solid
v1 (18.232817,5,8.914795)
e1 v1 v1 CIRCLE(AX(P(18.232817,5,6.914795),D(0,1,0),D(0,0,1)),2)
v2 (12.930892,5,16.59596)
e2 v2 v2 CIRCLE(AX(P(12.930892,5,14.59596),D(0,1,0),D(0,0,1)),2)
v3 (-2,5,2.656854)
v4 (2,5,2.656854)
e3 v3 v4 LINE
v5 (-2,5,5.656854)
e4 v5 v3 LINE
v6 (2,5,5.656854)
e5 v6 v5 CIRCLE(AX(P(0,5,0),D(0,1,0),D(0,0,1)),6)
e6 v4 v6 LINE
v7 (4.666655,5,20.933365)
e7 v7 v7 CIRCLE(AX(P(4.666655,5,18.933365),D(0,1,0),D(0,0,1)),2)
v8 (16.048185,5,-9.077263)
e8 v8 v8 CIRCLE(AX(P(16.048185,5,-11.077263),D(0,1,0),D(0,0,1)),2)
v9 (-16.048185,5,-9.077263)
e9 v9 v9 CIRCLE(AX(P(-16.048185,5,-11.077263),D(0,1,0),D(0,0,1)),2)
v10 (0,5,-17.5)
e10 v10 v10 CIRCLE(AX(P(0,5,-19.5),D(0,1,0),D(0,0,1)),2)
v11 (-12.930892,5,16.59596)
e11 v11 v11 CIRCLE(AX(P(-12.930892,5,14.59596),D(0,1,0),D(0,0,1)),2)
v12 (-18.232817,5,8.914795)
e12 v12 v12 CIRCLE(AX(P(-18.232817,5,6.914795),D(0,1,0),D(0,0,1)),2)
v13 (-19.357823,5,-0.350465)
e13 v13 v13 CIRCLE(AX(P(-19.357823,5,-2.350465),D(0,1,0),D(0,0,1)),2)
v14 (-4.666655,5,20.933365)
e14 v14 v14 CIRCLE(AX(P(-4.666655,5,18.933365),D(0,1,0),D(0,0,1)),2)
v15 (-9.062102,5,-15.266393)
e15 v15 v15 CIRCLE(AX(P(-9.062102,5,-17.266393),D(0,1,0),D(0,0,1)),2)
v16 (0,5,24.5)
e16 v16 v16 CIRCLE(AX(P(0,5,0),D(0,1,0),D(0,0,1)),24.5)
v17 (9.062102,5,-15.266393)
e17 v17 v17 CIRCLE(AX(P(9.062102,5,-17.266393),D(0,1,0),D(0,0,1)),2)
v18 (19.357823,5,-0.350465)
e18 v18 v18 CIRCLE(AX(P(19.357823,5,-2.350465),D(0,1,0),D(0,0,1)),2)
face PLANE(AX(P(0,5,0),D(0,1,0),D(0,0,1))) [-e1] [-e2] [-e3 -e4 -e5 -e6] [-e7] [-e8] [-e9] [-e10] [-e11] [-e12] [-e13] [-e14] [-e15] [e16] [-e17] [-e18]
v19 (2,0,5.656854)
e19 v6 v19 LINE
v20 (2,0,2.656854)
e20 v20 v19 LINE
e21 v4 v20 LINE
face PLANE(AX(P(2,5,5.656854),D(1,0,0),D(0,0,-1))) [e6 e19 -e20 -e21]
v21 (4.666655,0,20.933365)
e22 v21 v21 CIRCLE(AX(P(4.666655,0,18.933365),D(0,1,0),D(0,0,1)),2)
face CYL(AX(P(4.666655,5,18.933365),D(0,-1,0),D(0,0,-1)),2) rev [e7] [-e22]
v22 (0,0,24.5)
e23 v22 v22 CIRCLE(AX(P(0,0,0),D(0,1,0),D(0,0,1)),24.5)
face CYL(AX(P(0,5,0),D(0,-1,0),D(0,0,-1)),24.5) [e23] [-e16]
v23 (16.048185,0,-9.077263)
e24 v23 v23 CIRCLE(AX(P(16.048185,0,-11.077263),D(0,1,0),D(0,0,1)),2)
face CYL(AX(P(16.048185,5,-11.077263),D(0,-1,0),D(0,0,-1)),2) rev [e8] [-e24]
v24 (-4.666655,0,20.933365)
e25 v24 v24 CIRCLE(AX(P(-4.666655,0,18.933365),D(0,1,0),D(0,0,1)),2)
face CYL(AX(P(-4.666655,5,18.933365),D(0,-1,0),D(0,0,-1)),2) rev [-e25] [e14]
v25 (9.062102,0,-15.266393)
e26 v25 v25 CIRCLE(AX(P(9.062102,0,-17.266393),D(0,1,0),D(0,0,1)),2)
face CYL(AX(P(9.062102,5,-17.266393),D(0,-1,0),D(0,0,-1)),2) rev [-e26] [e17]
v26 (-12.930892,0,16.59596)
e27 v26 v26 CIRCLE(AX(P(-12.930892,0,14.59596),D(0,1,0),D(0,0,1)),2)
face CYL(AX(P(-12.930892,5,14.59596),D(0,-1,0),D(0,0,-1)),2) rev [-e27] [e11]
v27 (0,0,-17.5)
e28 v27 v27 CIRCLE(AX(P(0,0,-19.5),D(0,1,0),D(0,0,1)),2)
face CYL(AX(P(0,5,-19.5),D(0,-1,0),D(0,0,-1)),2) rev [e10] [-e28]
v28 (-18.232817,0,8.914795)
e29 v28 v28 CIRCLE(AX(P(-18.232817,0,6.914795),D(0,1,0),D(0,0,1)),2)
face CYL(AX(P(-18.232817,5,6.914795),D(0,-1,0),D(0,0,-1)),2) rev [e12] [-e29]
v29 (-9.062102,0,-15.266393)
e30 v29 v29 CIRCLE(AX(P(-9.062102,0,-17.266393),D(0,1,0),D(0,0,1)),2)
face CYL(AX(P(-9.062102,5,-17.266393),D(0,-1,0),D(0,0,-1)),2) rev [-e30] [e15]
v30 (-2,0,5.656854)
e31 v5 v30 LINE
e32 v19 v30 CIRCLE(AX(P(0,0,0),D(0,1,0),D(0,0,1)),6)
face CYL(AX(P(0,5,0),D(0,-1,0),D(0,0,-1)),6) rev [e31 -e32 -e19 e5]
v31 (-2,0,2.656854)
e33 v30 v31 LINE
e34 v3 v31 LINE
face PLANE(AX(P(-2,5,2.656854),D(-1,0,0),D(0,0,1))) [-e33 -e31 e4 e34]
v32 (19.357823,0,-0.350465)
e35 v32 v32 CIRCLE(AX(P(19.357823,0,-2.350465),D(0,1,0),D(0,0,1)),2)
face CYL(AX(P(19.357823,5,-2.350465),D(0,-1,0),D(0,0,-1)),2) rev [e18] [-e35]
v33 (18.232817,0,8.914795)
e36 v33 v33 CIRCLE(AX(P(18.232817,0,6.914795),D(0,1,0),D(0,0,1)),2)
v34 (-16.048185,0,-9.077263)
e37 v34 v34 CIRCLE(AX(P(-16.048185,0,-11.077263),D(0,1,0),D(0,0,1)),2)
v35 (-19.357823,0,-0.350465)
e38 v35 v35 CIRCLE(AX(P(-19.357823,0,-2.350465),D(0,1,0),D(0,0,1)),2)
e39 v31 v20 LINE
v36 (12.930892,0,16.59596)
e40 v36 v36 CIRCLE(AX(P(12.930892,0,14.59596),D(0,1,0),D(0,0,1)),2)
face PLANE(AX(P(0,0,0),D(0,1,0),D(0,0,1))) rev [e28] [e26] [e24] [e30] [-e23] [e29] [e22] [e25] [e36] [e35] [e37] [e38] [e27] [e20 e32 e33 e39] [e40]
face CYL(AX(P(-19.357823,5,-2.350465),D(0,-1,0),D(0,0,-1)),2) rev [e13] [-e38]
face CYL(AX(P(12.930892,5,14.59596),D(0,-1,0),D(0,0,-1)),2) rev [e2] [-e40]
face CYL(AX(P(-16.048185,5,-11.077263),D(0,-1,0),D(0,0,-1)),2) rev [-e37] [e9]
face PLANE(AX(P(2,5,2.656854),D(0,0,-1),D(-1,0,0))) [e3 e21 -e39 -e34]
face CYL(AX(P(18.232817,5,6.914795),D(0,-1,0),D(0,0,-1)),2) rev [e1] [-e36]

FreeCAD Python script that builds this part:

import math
import FreeCAD as App
import Part
import Sketcher
from FreeCAD import Vector

doc = App.newDocument("Part")
params = doc.addObject("Spreadsheet::Sheet", "Params")
for row, (alias, value) in enumerate([
    ("sketch1_diameter", "49 mm"),
    ("sketch1_diameter2", "4 mm"),
    ("sketch1_radius", "6 mm"),
    ("sketch1_width", "4 mm"),
    ("sketch1_height", "3 mm"),
    ("pad1_length", "5 mm"),
], start=1):
    params.set(f"A{row}", alias)
    params.set(f"B{row}", "=" + value)
    params.setAlias(f"B{row}", alias)

body = doc.addObject("PartDesign::Body", "Body")

# Sketch on XZ plane
sketch1 = body.newObject("Sketcher::SketchObject", "Sketch")
sketch1.AttachmentSupport = (doc.getObject("XZ_Plane"), [""])
sketch1.MapMode = "FlatFace"
sketch1.addGeometry([
    Part.Circle(Vector(0, 0, 0), Vector(0, 0, 1), 24.5),  # 0
    Part.Circle(Vector(-16, -11.1, 0), Vector(0, 0, 1), 2),  # 1
    Part.Circle(Vector(-19.4, -2.4, 0), Vector(0, 0, 1), 2),  # 2
    Part.Circle(Vector(-9.1, -17.3, 0), Vector(0, 0, 1), 2),  # 3
    Part.Circle(Vector(0, -19.5, 0), Vector(0, 0, 1), 2),  # 4
    Part.Circle(Vector(-18.2, 6.9, 0), Vector(0, 0, 1), 2),  # 5
    Part.Circle(Vector(-12.9, 14.6, 0), Vector(0, 0, 1), 2),  # 6
    Part.ArcOfCircle(Part.Circle(Vector(0, 0, 0), Vector(0, 0, 1), 6), math.radians(109), math.radians(431)),  # 7
    Part.LineSegment(Vector(2, 5.7, 0), Vector(2, 2.7, 0)),  # 8
    Part.LineSegment(Vector(2, 2.7, 0), Vector(-2, 2.7, 0)),  # 9
    Part.LineSegment(Vector(-2, 2.7, 0), Vector(-2, 5.7, 0)),  # 10
    Part.Circle(Vector(-4.7, 18.9, 0), Vector(0, 0, 1), 2),  # 11
    Part.Circle(Vector(9.1, -17.3, 0), Vector(0, 0, 1), 2),  # 12
    Part.Circle(Vector(16, -11.1, 0), Vector(0, 0, 1), 2),  # 13
    Part.Circle(Vector(19.4, -2.4, 0), Vector(0, 0, 1), 2),  # 14
    Part.Circle(Vector(4.7, 18.9, 0), Vector(0, 0, 1), 2),  # 15
    Part.Circle(Vector(18.2, 6.9, 0), Vector(0, 0, 1), 2),  # 16
    Part.Circle(Vector(12.9, 14.6, 0), Vector(0, 0, 1), 2),  # 17
], False)
sketch1.addConstraint([
    Sketcher.Constraint("Coincident", 7, 2, 8, 1),
    Sketcher.Constraint("Coincident", 8, 2, 9, 1),
    Sketcher.Constraint("Coincident", 9, 2, 10, 1),
    Sketcher.Constraint("Coincident", 10, 2, 7, 1),
    Sketcher.Constraint("Vertical", 8),
    Sketcher.Constraint("Horizontal", 9),
    Sketcher.Constraint("Vertical", 10),
    Sketcher.Constraint("Coincident", 0, 3, -1, 1),
    Sketcher.Constraint("Coincident", 7, 3, -1, 1),
    Sketcher.Constraint("Equal", 1, 2),
    Sketcher.Constraint("Equal", 2, 3),
    Sketcher.Constraint("Equal", 3, 4),
    Sketcher.Constraint("Equal", 4, 5),
    Sketcher.Constraint("Equal", 5, 6),
    Sketcher.Constraint("Equal", 6, 11),
    Sketcher.Constraint("Equal", 11, 12),
    Sketcher.Constraint("Equal", 12, 13),
    Sketcher.Constraint("Equal", 13, 14),
    Sketcher.Constraint("Equal", 14, 15),
    Sketcher.Constraint("Equal", 15, 16),
    Sketcher.Constraint("Equal", 16, 17),
    Sketcher.Constraint("Symmetric", 3, 3, 12, 3, -2),
    Sketcher.Constraint("Symmetric", 1, 3, 13, 3, -2),
    Sketcher.Constraint("Symmetric", 2, 3, 14, 3, -2),
    Sketcher.Constraint("Symmetric", 11, 3, 15, 3, -2),
    Sketcher.Constraint("Symmetric", 5, 3, 16, 3, -2),
    Sketcher.Constraint("Symmetric", 6, 3, 17, 3, -2),
    Sketcher.Constraint("PointOnObject", 4, 3, -2),
    Sketcher.Constraint("Horizontal", 7, 2, 10, 2),
    Sketcher.Constraint("Diameter", 0, 49.0),
    Sketcher.Constraint("Diameter", 1, 4.0),
    Sketcher.Constraint("Radius", 7, 6.0),
    Sketcher.Constraint("DistanceX", 9, 2, 9, 1, 4.0),
    Sketcher.Constraint("DistanceY", 8, 2, 8, 1, 3.0),
    Sketcher.Constraint("DistanceY", 4, 3, -1, 1, 19.5),
    Sketcher.Constraint("DistanceX", 3, 3, -1, 1, 9.062102),
    Sketcher.Constraint("DistanceX", 6, 3, -1, 1, 12.930892),
    Sketcher.Constraint("DistanceY", -1, 1, 6, 3, 14.59596),
    Sketcher.Constraint("DistanceY", 3, 3, 1, 3, 6.18913),
    Sketcher.Constraint("DistanceX", 2, 3, 3, 3, 10.295721),
    Sketcher.Constraint("DistanceY", 2, 3, 5, 3, 9.265261),
    Sketcher.Constraint("DistanceX", 5, 3, 1, 3, 2.184631),
    Sketcher.Constraint("DistanceX", 5, 3, 11, 3, 13.566161),
    Sketcher.Constraint("DistanceY", 5, 3, 11, 3, 12.01857),
    Sketcher.Constraint("DistanceX", 11, 3, 15, 3, 9.333311),
    Sketcher.Constraint("DistanceY", 7, 2, 15, 3, 13.276511),
    Sketcher.Constraint("DistanceY", 1, 3, -1, 1, 11.077263),
])
sketch1.setExpression("Constraints[29]", "Params.sketch1_diameter")
sketch1.setExpression("Constraints[30]", "Params.sketch1_diameter2")
sketch1.setExpression("Constraints[31]", "Params.sketch1_radius")
sketch1.setExpression("Constraints[32]", "Params.sketch1_width")
sketch1.setExpression("Constraints[33]", "Params.sketch1_height")
pad1 = body.newObject("PartDesign::Pad", "Pad")
pad1.Profile = sketch1
pad1.setExpression("Length", "Params.pad1_length")
pad1.Reversed = True

doc.recompute()
